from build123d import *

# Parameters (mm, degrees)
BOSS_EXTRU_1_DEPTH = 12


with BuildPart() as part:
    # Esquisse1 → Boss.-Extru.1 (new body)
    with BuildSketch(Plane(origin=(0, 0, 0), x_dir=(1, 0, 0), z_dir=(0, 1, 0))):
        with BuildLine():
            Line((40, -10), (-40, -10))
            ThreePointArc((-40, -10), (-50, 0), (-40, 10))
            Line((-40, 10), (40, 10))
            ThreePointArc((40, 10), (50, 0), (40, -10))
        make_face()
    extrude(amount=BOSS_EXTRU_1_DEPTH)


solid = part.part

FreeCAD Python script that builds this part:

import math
import FreeCAD as App
import Part
import Sketcher
from FreeCAD import Vector
Q = App.Units.Quantity

doc = App.newDocument("Part")
body = doc.addObject("PartDesign::Body", "Body")

sketch1 = doc.addObject("Sketcher::SketchObject", "Sketch")
body.addObject(sketch1)
sketch1.AttachmentSupport = (doc.XZ_Plane, [""])
sketch1.MapMode = "FlatFace"
sketch1.addGeometry(Part.LineSegment(Vector(-40, 10, 0), Vector(40, 10, 0)), False)
sketch1.addGeometry(Part.ArcOfCircle(Part.Circle(Vector(40, 0, 0), Vector(0, 0, 1), 10), math.radians(-90), math.radians(90)), False)
sketch1.addGeometry(Part.LineSegment(Vector(40, -10, 0), Vector(-40, -10, 0)), False)
sketch1.addGeometry(Part.ArcOfCircle(Part.Circle(Vector(-40, 0, 0), Vector(0, 0, 1), 10), math.radians(90), math.radians(270)), False)
sketch1.addConstraint(Sketcher.Constraint("Tangent", 0, 2, 1, 2))
sketch1.addConstraint(Sketcher.Constraint("Tangent", 1, 1, 2, 1))
sketch1.addConstraint(Sketcher.Constraint("Tangent", 2, 2, 3, 2))
sketch1.addConstraint(Sketcher.Constraint("Tangent", 3, 1, 0, 1))
sketch1.addConstraint(Sketcher.Constraint("Horizontal", 0))
sketch1.addConstraint(Sketcher.Constraint("Horizontal", 2))
sketch1.addConstraint(Sketcher.Constraint("Symmetric", 1, 3, 3, 3, -1, 1))
sketch1.addConstraint(Sketcher.Constraint("Radius", 1, Q("10 mm")))
sketch1.addConstraint(Sketcher.Constraint("DistanceX", 0, 1, 0, 2, Q("80 mm")))
pad1 = doc.addObject("PartDesign::Pad", "Pad")
body.addObject(pad1)
pad1.Profile = sketch1
pad1.Length = 12
pad1.Reversed = True

doc.recompute()
